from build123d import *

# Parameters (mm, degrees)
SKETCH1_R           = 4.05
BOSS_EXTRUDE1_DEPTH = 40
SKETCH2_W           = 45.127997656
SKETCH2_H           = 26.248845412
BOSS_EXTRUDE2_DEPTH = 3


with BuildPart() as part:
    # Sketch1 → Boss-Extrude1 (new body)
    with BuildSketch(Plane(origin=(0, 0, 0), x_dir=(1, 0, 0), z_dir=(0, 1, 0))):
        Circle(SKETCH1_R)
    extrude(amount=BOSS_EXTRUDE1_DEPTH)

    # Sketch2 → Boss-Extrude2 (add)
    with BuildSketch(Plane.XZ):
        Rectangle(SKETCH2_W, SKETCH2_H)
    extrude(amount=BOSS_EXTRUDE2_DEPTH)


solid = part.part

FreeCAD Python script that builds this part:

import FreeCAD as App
import Part
import Sketcher

V = App.Vector


def add_polygon(sketch, points):
    """Adds a closed chain of lines whose ends are joined by coincident constraints."""
    first, n = sketch.GeometryCount, len(points)
    for a, b in zip(points, points[1:] + points[:1]):
        sketch.addGeometry(Part.LineSegment(App.Vector(*a, 0), App.Vector(*b, 0)), False)
    for i in range(n):
        sketch.addConstraint(Sketcher.Constraint("Coincident", first + i, 2, first + (i + 1) % n, 1))

doc = App.newDocument("Part")
params = doc.addObject("Spreadsheet::Sheet", "Params")
for row, (alias, value) in enumerate([
    ("sketch1_diameter", "8.1 mm"),
    ("pad1_length", "40 mm"),
    ("pad2_length", "3 mm"),
], start=1):
    params.set(f"A{row}", alias)
    params.set(f"B{row}", "=" + value)
    params.setAlias(f"B{row}", alias)

body = doc.addObject("PartDesign::Body", "Body")

# Sketch on XZ plane
sketch1 = body.newObject("Sketcher::SketchObject", "Sketch")
sketch1.AttachmentSupport = (doc.getObject("XZ_Plane"), [""])
sketch1.MapMode = "FlatFace"
sketch1.addGeometry(Part.Circle(V(0, 0, 0), V(0, 0, 1), 4.05), False)
sketch1.addConstraint([
    Sketcher.Constraint("Coincident", 0, 3, -1, 1),
    Sketcher.Constraint("Diameter", 0, 8.1),
])
sketch1.setExpression("Constraints[1]", "Params.sketch1_diameter")
pad1 = body.newObject("PartDesign::Pad", "Pad")
pad1.Profile = sketch1
pad1.setExpression("Length", "Params.pad1_length")
pad1.Reversed = True

# Sketch on XZ plane
sketch2 = body.newObject("Sketcher::SketchObject", "Sketch001")
sketch2.AttachmentSupport = (doc.getObject("XZ_Plane"), [""])
sketch2.MapMode = "FlatFace"
add_polygon(sketch2, [(-22.563999, 13.124423), (-22.563999, -13.124423), (22.563999, -13.124423), (22.563999, 13.124423)])  # lines 0-3
sketch2.addConstraint([
    Sketcher.Constraint("Vertical", 0),
    Sketcher.Constraint("Horizontal", 1),
    Sketcher.Constraint("Vertical", 2),
    Sketcher.Constraint("Horizontal", 3),
    Sketcher.Constraint("Symmetric", 0, 2, 2, 2, -1, 1),
    Sketcher.Constraint("DistanceX", 0, 2, -1, 1, 22.563999),
    Sketcher.Constraint("DistanceY", 0, 2, 0, 1, 26.248845),
])
pad2 = body.newObject("PartDesign::Pad", "Pad001")
pad2.Profile = sketch2
pad2.setExpression("Length", "Params.pad2_length")

doc.recompute()
